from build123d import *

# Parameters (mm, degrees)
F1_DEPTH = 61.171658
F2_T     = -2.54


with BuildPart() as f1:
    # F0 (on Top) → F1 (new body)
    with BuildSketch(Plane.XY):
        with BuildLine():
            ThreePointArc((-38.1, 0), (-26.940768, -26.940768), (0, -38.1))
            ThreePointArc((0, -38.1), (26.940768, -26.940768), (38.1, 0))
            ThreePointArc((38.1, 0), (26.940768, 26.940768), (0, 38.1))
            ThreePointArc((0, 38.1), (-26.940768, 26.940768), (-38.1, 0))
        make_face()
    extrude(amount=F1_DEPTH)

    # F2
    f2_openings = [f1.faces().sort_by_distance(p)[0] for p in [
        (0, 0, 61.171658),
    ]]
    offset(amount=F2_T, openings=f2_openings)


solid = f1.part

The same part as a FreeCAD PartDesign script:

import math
import FreeCAD as App
import Part
import Sketcher
Q = App.Units.Quantity


def faces_at(feature, points):
    """Names of the faces that lie closest to the given points."""
    faces = feature.Shape.Faces
    near = lambda p: min(range(len(faces)), key=lambda i: faces[i].distToShape(Part.Vertex(*p))[0])
    return sorted({f"Face{near(p) + 1}" for p in points})

doc = App.newDocument("Part")
body = doc.addObject("PartDesign::Body", "Body")

# Sketch on XY plane
sketch1 = body.newObject("Sketcher::SketchObject", "Sketch")
sketch1.AttachmentSupport = (doc.getObject("XY_Plane"), [""])
sketch1.MapMode = "FlatFace"
sketch1.addGeometry([
    Part.ArcOfCircle(Part.Circle(App.Vector(0, 0, 0), App.Vector(0, 0, 1), 38), math.radians(-180), math.radians(-90)),
    Part.ArcOfCircle(Part.Circle(App.Vector(0, 0, 0), App.Vector(0, 0, 1), 38), math.radians(-90), math.radians(0)),
    Part.ArcOfCircle(Part.Circle(App.Vector(0, 0, 0), App.Vector(0, 0, 1), 38), math.radians(0), math.radians(90)),
    Part.ArcOfCircle(Part.Circle(App.Vector(0, 0, 0), App.Vector(0, 0, 1), 38), math.radians(90), math.radians(180)),
], False)
sketch1.addConstraint([
    Sketcher.Constraint("Tangent", 0, 2, 1, 1),
    Sketcher.Constraint("Tangent", 1, 2, 2, 1),
    Sketcher.Constraint("Tangent", 2, 2, 3, 1),
    Sketcher.Constraint("Tangent", 3, 2, 0, 1),
    Sketcher.Constraint("Coincident", 0, 3, -1, 1),
    Sketcher.Constraint("Equal", 0, 1),
    Sketcher.Constraint("PointOnObject", 0, 2, -2),
    Sketcher.Constraint("PointOnObject", 1, 2, -1),
    Sketcher.Constraint("PointOnObject", 2, 2, -2),
    Sketcher.Constraint("PointOnObject", 3, 2, -1),
    Sketcher.Constraint("Radius", 0, Q("1.5 in")),
])
pad1 = body.newObject("PartDesign::Pad", "Pad")
pad1.Profile = sketch1
pad1.Length = 61.171658
doc.recompute()

thickness = body.newObject("PartDesign::Thickness", "Thickness")
thickness.Base = (pad1, faces_at(pad1, [(0, 0, 61.172)]))
thickness.Value = Q("0.1 in")
thickness.Reversed = True
thickness.Join = "Arc"

doc.recompute()
